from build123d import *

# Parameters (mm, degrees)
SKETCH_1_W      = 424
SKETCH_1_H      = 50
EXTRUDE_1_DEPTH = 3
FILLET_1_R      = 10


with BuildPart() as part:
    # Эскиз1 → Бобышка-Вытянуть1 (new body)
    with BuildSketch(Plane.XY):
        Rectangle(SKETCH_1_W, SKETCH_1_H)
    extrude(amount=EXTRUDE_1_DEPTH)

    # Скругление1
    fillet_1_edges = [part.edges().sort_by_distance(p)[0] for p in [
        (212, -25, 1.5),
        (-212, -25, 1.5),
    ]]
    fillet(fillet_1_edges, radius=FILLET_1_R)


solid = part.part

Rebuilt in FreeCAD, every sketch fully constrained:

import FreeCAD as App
import Part
import Sketcher
from FreeCAD import Vector


def edges_at(feature, points):
    """Names of the edges that pass closest to the given points."""
    edges = feature.Shape.Edges
    near = lambda p: min(range(len(edges)), key=lambda i: edges[i].distToShape(Part.Vertex(*p))[0])
    return sorted({f"Edge{near(p) + 1}" for p in points})


def add_polygon(sketch, points):
    """Adds a closed chain of lines whose ends are joined by coincident constraints."""
    first, n = sketch.GeometryCount, len(points)
    for a, b in zip(points, points[1:] + points[:1]):
        sketch.addGeometry(Part.LineSegment(App.Vector(*a, 0), App.Vector(*b, 0)), False)
    for i in range(n):
        sketch.addConstraint(Sketcher.Constraint("Coincident", first + i, 2, first + (i + 1) % n, 1))

doc = App.newDocument("Part")
body = doc.addObject("PartDesign::Body", "Body")

# Sketch on XY plane
sketch1 = body.newObject("Sketcher::SketchObject", "Sketch")
sketch1.AttachmentSupport = (doc.getObject("XY_Plane"), [""])
sketch1.MapMode = "FlatFace"
add_polygon(sketch1, [(-212, 25), (-212, -25), (212, -25), (212, 25)])  # lines 0-3
sketch1.addConstraint(Sketcher.Constraint("Vertical", 0))
sketch1.addConstraint(Sketcher.Constraint("Horizontal", 1))
sketch1.addConstraint(Sketcher.Constraint("Vertical", 2))
sketch1.addConstraint(Sketcher.Constraint("Horizontal", 3))
sketch1.addConstraint(Sketcher.Constraint("Symmetric", 0, 2, 2, 2, -1, 1))
sketch1.addConstraint(Sketcher.Constraint("DistanceX", 1, 1, 1, 2, 424.0))
sketch1.addConstraint(Sketcher.Constraint("DistanceY", 0, 2, 0, 1, 50.0))
pad1 = body.newObject("PartDesign::Pad", "Pad")
pad1.Profile = sketch1
pad1.Length = 3
doc.recompute()

fillet = body.newObject("PartDesign::Fillet", "Fillet")
fillet.Base = (pad1, edges_at(pad1, [(212, -25, 1.5), (-212, -25, 1.5)]))
fillet.Radius = 10

doc.recompute()
